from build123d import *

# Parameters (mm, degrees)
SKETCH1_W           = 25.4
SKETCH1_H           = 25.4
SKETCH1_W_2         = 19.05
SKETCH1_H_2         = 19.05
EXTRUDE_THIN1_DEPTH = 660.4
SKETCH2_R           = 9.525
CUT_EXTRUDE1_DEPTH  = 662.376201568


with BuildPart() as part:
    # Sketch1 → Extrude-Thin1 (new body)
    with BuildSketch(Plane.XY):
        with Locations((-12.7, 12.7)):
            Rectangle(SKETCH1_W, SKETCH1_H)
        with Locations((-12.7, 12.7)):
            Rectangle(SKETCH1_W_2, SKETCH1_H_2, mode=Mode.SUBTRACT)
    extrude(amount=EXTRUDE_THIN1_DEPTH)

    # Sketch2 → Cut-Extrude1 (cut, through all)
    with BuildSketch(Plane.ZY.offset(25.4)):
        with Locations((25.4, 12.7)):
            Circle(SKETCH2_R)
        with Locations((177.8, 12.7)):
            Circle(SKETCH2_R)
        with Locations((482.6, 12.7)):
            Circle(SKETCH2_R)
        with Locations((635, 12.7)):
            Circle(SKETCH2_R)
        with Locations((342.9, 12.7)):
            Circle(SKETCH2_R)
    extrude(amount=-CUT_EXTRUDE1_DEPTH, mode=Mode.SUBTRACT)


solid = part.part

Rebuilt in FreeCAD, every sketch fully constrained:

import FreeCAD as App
import Part
import Sketcher
from FreeCAD import Vector
Q = App.Units.Quantity


def add_polygon(sketch, points):
    """Adds a closed chain of lines whose ends are joined by coincident constraints."""
    first, n = sketch.GeometryCount, len(points)
    for a, b in zip(points, points[1:] + points[:1]):
        sketch.addGeometry(Part.LineSegment(App.Vector(*a, 0), App.Vector(*b, 0)), False)
    for i in range(n):
        sketch.addConstraint(Sketcher.Constraint("Coincident", first + i, 2, first + (i + 1) % n, 1))

doc = App.newDocument("Part")
params = doc.addObject("Spreadsheet::Sheet", "Params")
for row, (alias, value) in enumerate([
    ("sketch1_width", "1 in"),
    ("sketch1_width2", "0.75 in"),
    ("pad1_length", "26 in"),
    ("sketch2_diameter", "0.75 in"),
], start=1):
    params.set(f"A{row}", alias)
    params.set(f"B{row}", "=" + value)
    params.setAlias(f"B{row}", alias)

body = doc.addObject("PartDesign::Body", "Body")

# Sketch on XY plane
sketch1 = doc.addObject("Sketcher::SketchObject", "Sketch")
body.addObject(sketch1)
sketch1.AttachmentSupport = (doc.XY_Plane, [""])
sketch1.MapMode = "FlatFace"
add_polygon(sketch1, [(-25, 25), (-25, 0), (0, 0), (0, 25)])  # lines 0-3
add_polygon(sketch1, [(-3, 3), (-22, 3), (-22, 22), (-3, 22)])  # lines 4-7
sketch1.addConstraint([
    Sketcher.Constraint("Vertical", 0),
    Sketcher.Constraint("Horizontal", 1),
    Sketcher.Constraint("Vertical", 2),
    Sketcher.Constraint("Horizontal", 3),
    Sketcher.Constraint("Horizontal", 4),
    Sketcher.Constraint("Vertical", 5),
    Sketcher.Constraint("Horizontal", 6),
    Sketcher.Constraint("Vertical", 7),
    Sketcher.Constraint("Coincident", 1, 2, -1, 1),
    Sketcher.Constraint("Equal", 3, 0),
    Sketcher.Constraint("Equal", 6, 5),
    Sketcher.Constraint("DistanceX", 1, 1, 1, 2, Q("1 in")),
    Sketcher.Constraint("DistanceX", 4, 2, 4, 1, Q("0.75 in")),
    Sketcher.Constraint("DistanceX", 4, 2, -1, 1, Q("0.875 in")),
    Sketcher.Constraint("DistanceY", -1, 1, 4, 2, Q("0.125 in")),
])
sketch1.setExpression("Constraints[19]", "Params.sketch1_width")
sketch1.setExpression("Constraints[20]", "Params.sketch1_width2")
pad1 = doc.addObject("PartDesign::Pad", "Pad")
body.addObject(pad1)
pad1.Profile = sketch1
pad1.setExpression("Length", "Params.pad1_length")

# Sketch on YZ plane
sketch2 = doc.addObject("Sketcher::SketchObject", "Sketch001")
body.addObject(sketch2)
sketch2.AttachmentSupport = (doc.YZ_Plane, [""])
sketch2.MapMode = "FlatFace"
sketch2.AttachmentOffset = App.Placement(Vector(0, 0, -1 * 25.4), App.Rotation())
sketch2.addGeometry([
    Part.Circle(Vector(13, 25, 0), Vector(0, 0, 1), 10),  # 0
    Part.Circle(Vector(13, 178, 0), Vector(0, 0, 1), 10),  # 1
    Part.Circle(Vector(13, 483, 0), Vector(0, 0, 1), 10),  # 2
    Part.Circle(Vector(13, 635, 0), Vector(0, 0, 1), 10),  # 3
    Part.Circle(Vector(13, 343, 0), Vector(0, 0, 1), 10),  # 4
], False)
sketch2.addConstraint([
    Sketcher.Constraint("Equal", 0, 1),
    Sketcher.Constraint("Equal", 1, 2),
    Sketcher.Constraint("Equal", 2, 3),
    Sketcher.Constraint("Equal", 3, 4),
    Sketcher.Constraint("Vertical", 0, 3, 1, 3),
    Sketcher.Constraint("Vertical", 1, 3, 2, 3),
    Sketcher.Constraint("Vertical", 2, 3, 3, 3),
    Sketcher.Constraint("Vertical", 3, 3, 4, 3),
    Sketcher.Constraint("Diameter", 0, Q("0.75 in")),
    Sketcher.Constraint("DistanceY", -1, 1, 0, 3, Q("1 in")),
    Sketcher.Constraint("DistanceY", -1, 1, 1, 3, Q("7 in")),
    Sketcher.Constraint("DistanceY", -1, 1, 2, 3, Q("19 in")),
    Sketcher.Constraint("DistanceY", -1, 1, 3, 3, Q("25 in")),
    Sketcher.Constraint("DistanceX", -1, 1, 0, 3, Q("0.5 in")),
    Sketcher.Constraint("DistanceY", -1, 1, 4, 3, Q("13.5 in")),
])
sketch2.setExpression("Constraints[8]", "Params.sketch2_diameter")
pocket1 = doc.addObject("PartDesign::Pocket", "Pocket")
body.addObject(pocket1)
pocket1.Profile = sketch2
pocket1.Type = "ThroughAll"
pocket1.Reversed = True

doc.recompute()
